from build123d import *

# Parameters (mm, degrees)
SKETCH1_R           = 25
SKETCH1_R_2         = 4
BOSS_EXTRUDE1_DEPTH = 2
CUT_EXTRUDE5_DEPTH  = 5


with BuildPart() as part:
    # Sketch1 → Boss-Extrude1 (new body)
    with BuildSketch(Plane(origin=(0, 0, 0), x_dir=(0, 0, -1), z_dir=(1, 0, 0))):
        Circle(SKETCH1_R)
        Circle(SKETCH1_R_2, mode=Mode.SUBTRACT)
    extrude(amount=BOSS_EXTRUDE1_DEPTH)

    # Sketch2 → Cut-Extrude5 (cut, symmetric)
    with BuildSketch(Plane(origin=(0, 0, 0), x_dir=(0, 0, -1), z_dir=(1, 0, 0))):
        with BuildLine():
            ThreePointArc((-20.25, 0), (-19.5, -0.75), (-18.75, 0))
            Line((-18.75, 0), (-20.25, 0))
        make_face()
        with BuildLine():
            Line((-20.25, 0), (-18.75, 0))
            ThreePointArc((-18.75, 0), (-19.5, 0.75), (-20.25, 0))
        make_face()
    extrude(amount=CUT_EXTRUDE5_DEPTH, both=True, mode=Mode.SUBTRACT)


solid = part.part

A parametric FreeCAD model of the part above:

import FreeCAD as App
import Part
import Sketcher

V = App.Vector

doc = App.newDocument("Part")
body = doc.addObject("PartDesign::Body", "Body")

# Sketch on YZ plane
sketch1 = body.newObject("Sketcher::SketchObject", "Sketch")
sketch1.AttachmentSupport = (doc.getObject("YZ_Plane"), [""])
sketch1.MapMode = "FlatFace"
sketch1.addGeometry([
    Part.Circle(V(0, 0, 0), V(0, 0, 1), 25),
    Part.Circle(V(0, 0, 0), V(0, 0, 1), 4),
], False)
sketch1.addConstraint([
    Sketcher.Constraint("Coincident", 0, 3, -1, 1),
    Sketcher.Constraint("Coincident", 1, 3, -1, 1),
    Sketcher.Constraint("Diameter", 0, 50.0),
    Sketcher.Constraint("Diameter", 1, 8.0),
])
pad1 = body.newObject("PartDesign::Pad", "Pad")
pad1.Profile = sketch1
pad1.Length = 2

# Sketch on YZ plane
sketch2 = body.newObject("Sketcher::SketchObject", "Sketch001")
sketch2.AttachmentSupport = (doc.getObject("YZ_Plane"), [""])
sketch2.MapMode = "FlatFace"
sketch2.addGeometry(Part.Circle(V(0, 19.5, 0), V(0, 0, 1), 0.75), False)
sketch2.addConstraint([
    Sketcher.Constraint("PointOnObject", 0, 3, -2),
    Sketcher.Constraint("Diameter", 0, 1.5),
    Sketcher.Constraint("DistanceY", -1, 1, 0, 3, 19.5),
])
pocket1 = body.newObject("PartDesign::Pocket", "Pocket")
pocket1.Profile = sketch2
pocket1.Length = 10
pocket1.Midplane = True

doc.recompute()
